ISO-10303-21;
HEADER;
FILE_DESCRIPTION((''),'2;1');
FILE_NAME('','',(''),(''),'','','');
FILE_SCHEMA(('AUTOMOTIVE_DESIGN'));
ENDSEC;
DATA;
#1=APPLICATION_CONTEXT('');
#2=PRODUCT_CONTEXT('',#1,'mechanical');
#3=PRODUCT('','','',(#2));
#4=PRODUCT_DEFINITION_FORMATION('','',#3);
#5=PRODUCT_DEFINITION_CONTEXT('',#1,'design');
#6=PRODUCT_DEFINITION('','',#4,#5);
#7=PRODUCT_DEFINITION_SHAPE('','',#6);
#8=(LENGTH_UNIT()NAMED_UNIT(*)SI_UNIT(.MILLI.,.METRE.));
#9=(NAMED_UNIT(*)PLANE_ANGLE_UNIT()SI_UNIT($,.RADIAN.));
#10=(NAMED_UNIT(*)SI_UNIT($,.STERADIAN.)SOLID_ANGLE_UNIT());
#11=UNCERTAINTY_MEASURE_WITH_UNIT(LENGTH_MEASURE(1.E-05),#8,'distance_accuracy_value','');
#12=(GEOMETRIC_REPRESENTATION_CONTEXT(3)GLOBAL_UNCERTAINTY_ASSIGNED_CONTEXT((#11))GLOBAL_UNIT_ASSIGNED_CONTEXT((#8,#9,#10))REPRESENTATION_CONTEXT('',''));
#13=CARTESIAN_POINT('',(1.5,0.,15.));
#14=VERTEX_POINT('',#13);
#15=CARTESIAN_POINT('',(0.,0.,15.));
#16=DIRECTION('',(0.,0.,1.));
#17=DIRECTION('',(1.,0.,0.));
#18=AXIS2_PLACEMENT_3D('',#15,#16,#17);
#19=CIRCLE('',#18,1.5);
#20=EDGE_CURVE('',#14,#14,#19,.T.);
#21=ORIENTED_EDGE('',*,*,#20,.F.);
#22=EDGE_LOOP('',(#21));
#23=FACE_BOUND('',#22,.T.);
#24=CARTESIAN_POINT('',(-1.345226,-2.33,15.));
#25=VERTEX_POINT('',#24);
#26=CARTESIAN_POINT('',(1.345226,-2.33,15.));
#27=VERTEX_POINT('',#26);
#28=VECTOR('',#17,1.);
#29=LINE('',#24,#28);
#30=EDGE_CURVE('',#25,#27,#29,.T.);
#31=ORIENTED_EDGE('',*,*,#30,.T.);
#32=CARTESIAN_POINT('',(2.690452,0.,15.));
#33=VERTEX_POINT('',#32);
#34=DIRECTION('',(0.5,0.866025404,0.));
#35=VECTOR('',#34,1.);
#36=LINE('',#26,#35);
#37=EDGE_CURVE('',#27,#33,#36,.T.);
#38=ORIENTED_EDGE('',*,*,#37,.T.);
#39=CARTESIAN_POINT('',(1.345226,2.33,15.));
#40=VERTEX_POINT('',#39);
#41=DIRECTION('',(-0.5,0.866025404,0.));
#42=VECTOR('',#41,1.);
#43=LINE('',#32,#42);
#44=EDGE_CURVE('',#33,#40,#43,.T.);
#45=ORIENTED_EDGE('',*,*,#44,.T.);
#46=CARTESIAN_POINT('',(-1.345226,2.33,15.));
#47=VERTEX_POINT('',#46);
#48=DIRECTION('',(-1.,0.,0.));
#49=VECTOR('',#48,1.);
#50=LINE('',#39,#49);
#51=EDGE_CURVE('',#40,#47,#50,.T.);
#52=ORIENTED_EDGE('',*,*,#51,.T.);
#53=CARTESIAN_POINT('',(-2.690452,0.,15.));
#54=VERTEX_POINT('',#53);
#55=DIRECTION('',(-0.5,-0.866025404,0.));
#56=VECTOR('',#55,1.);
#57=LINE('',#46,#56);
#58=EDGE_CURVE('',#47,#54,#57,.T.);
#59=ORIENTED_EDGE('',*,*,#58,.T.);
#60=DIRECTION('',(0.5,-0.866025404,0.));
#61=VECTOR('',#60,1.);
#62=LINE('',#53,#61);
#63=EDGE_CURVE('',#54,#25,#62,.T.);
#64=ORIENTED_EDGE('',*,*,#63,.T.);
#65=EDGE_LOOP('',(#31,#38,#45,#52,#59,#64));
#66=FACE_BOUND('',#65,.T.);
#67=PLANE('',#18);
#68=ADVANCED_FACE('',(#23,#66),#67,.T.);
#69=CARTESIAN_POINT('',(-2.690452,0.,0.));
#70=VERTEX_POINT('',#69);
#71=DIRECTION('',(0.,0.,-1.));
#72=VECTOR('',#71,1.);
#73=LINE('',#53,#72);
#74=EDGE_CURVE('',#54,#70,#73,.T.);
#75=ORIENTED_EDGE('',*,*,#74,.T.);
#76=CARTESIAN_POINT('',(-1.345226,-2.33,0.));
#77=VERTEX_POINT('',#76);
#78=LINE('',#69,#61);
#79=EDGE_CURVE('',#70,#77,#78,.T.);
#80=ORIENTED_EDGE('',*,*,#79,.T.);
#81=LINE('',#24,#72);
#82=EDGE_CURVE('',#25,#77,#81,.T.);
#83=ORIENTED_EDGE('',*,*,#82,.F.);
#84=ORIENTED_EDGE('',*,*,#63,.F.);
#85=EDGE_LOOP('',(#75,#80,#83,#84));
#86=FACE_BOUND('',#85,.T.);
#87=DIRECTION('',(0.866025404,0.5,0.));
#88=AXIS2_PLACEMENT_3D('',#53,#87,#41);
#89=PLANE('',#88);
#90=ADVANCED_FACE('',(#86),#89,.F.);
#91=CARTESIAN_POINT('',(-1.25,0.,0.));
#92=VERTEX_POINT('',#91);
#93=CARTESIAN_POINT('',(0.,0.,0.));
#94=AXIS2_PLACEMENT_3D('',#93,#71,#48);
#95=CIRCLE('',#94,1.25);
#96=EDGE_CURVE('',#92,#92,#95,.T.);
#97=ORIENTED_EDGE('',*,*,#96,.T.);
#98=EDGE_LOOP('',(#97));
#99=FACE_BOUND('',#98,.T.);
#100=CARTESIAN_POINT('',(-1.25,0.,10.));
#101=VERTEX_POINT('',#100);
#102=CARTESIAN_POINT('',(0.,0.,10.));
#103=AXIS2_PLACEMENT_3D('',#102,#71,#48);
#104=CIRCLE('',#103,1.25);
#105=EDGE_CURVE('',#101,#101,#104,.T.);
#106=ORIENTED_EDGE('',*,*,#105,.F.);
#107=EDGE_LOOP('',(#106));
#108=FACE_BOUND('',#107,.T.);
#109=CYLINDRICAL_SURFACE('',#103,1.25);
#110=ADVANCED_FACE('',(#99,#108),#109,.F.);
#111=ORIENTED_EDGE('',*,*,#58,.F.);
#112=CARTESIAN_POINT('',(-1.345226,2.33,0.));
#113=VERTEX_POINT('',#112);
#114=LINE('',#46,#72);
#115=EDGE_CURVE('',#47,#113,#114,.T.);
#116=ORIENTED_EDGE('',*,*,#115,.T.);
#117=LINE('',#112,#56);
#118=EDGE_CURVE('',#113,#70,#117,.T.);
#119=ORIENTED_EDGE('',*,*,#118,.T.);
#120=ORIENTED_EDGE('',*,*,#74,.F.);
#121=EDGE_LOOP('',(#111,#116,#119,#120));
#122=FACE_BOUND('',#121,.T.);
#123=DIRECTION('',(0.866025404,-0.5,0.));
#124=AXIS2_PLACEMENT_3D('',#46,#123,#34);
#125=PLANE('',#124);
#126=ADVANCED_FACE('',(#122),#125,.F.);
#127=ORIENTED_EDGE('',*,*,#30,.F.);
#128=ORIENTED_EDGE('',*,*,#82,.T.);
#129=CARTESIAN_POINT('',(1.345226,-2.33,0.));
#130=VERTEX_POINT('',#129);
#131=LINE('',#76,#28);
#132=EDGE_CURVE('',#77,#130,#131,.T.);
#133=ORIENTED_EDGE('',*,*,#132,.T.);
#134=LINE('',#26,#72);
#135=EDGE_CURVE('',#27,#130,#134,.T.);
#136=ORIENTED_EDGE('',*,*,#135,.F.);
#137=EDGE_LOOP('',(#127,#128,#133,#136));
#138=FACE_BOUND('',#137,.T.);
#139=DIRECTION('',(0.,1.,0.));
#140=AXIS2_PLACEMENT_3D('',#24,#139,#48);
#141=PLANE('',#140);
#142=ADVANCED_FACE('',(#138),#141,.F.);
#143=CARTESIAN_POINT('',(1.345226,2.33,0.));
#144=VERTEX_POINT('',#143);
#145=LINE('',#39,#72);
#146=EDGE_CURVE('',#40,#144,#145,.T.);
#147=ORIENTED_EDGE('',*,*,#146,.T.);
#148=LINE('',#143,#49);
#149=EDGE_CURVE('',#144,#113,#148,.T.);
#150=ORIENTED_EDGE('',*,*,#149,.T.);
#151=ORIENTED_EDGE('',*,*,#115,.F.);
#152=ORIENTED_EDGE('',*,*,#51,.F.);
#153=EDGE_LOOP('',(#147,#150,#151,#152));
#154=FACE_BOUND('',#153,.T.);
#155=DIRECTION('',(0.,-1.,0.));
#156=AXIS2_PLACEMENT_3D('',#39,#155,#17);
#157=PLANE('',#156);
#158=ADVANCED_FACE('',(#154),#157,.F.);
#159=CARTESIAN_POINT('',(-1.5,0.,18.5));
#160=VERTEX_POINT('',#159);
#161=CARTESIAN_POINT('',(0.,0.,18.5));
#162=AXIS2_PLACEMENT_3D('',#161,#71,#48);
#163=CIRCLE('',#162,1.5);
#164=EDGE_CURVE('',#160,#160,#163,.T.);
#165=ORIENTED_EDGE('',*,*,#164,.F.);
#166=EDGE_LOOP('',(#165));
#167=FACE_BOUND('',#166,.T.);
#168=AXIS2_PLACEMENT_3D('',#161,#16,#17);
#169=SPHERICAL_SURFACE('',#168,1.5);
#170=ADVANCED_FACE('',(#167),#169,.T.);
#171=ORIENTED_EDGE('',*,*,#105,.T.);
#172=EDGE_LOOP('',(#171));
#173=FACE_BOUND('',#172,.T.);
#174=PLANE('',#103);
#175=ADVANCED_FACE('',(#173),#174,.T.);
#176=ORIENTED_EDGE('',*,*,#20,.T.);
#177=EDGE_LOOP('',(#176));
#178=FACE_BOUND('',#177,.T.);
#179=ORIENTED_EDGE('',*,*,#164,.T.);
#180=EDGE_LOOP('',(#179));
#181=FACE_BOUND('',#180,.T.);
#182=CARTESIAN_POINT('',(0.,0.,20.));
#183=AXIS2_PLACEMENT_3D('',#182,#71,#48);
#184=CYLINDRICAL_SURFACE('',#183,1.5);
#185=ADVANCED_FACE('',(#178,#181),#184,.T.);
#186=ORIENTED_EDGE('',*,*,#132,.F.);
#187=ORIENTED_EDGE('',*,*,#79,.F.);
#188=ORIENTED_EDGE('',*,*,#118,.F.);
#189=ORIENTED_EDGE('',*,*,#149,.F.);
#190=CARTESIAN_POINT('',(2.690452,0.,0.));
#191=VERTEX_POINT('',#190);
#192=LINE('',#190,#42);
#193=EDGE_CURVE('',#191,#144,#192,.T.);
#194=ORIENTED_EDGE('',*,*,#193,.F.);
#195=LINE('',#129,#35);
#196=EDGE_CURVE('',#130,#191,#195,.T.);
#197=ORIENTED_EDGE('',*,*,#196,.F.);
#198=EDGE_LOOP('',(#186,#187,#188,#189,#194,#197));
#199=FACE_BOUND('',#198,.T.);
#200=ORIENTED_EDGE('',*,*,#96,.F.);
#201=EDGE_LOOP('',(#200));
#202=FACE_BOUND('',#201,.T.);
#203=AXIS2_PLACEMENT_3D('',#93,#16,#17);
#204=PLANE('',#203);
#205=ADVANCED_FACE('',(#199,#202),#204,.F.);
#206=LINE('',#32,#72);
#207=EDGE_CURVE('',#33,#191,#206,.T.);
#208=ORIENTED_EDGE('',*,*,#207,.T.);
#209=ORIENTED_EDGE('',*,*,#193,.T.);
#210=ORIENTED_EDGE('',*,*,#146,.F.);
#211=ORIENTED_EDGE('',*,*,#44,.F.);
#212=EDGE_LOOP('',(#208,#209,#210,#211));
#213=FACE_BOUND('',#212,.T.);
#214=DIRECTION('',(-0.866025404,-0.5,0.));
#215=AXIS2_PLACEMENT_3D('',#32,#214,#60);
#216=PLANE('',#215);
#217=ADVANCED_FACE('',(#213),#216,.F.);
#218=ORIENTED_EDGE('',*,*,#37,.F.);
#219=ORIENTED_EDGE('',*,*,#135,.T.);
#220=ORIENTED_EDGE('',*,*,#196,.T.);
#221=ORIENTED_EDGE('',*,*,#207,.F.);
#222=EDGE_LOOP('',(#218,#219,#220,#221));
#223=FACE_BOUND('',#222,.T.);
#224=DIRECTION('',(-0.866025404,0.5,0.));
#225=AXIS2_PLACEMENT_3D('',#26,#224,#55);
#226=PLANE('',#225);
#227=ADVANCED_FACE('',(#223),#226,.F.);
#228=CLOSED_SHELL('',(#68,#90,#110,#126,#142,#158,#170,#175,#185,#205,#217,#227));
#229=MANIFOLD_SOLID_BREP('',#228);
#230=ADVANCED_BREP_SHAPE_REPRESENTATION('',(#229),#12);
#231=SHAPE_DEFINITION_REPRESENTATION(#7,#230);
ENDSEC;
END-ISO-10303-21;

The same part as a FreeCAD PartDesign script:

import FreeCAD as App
import Part
import Sketcher
from FreeCAD import Vector
Q = App.Units.Quantity


def edges_at(feature, points):
    """Names of the edges that pass closest to the given points."""
    edges = feature.Shape.Edges
    near = lambda p: min(range(len(edges)), key=lambda i: edges[i].distToShape(Part.Vertex(*p))[0])
    return sorted({f"Edge{near(p) + 1}" for p in points})


def add_polygon(sketch, points):
    """Adds a closed chain of lines whose ends are joined by coincident constraints."""
    first, n = sketch.GeometryCount, len(points)
    for a, b in zip(points, points[1:] + points[:1]):
        sketch.addGeometry(Part.LineSegment(App.Vector(*a, 0), App.Vector(*b, 0)), False)
    for i in range(n):
        sketch.addConstraint(Sketcher.Constraint("Coincident", first + i, 2, first + (i + 1) % n, 1))

doc = App.newDocument("Part")
body = doc.addObject("PartDesign::Body", "Body")

# Sketch on XY plane
sketch1 = body.newObject("Sketcher::SketchObject", "Sketch")
sketch1.AttachmentSupport = (doc.getObject("XY_Plane"), [""])
sketch1.MapMode = "FlatFace"
add_polygon(sketch1, [(2.7, 0), (1.3, 2.3), (-1.3, 2.3), (-2.7, 0), (-1.3, -2.3), (1.3, -2.3)])  # lines 0-5
sketch1.addConstraint([
    Sketcher.Constraint("Horizontal", 1),
    Sketcher.Constraint("Horizontal", 4),
    Sketcher.Constraint("Symmetric", 0, 2, 3, 2, -1, 1),
    Sketcher.Constraint("Symmetric", 2, 2, 5, 2, -1, 1),
    Sketcher.Constraint("PointOnObject", 2, 2, -1),
    Sketcher.Constraint("Parallel", 2, 5),
    Sketcher.Constraint("Vertical", 1, 2, 3, 2),
    Sketcher.Constraint("Angle", 0, Q("120 deg")),
    Sketcher.Constraint("DistanceY", -1, 1, 0, 2, 2.33),
    Sketcher.Constraint("DistanceX", 1, 2, 1, 1, 2.690452),
])
pad1 = body.newObject("PartDesign::Pad", "Pad")
pad1.Profile = sketch1
pad1.Length = 15

# Sketch on XY plane
sketch2 = body.newObject("Sketcher::SketchObject", "Sketch001")
sketch2.AttachmentSupport = (doc.getObject("XY_Plane"), [""])
sketch2.MapMode = "FlatFace"
sketch2.AttachmentOffset = App.Placement(Vector(0, 0, 15), App.Rotation())
sketch2.addGeometry(Part.Circle(Vector(0, 0, 0), Vector(0, 0, 1), 1.5), False)
sketch2.addConstraint([
    Sketcher.Constraint("Coincident", 0, 3, -1, 1),
    Sketcher.Constraint("Diameter", 0, 3.0),
])
pad2 = body.newObject("PartDesign::Pad", "Pad001")
pad2.Profile = sketch2
pad2.Length = 5
doc.recompute()

fillet = body.newObject("PartDesign::Fillet", "Fillet")
fillet.Base = (pad2, edges_at(pad2, [(-1.5, 0, 20)]))
fillet.Radius = 1.5

# Sketch on XY plane
sketch3 = body.newObject("Sketcher::SketchObject", "Sketch002")
sketch3.AttachmentSupport = (doc.getObject("XY_Plane"), [""])
sketch3.MapMode = "FlatFace"
sketch3.addGeometry(Part.Circle(Vector(0, 0, 0), Vector(0, 0, 1), 1.2), False)
sketch3.addConstraint([
    Sketcher.Constraint("Coincident", 0, 3, -1, 1),
    Sketcher.Constraint("Diameter", 0, 2.5),
])
pocket1 = body.newObject("PartDesign::Pocket", "Pocket")
pocket1.Profile = sketch3
pocket1.Length = 10
pocket1.Reversed = True

doc.recompute()
